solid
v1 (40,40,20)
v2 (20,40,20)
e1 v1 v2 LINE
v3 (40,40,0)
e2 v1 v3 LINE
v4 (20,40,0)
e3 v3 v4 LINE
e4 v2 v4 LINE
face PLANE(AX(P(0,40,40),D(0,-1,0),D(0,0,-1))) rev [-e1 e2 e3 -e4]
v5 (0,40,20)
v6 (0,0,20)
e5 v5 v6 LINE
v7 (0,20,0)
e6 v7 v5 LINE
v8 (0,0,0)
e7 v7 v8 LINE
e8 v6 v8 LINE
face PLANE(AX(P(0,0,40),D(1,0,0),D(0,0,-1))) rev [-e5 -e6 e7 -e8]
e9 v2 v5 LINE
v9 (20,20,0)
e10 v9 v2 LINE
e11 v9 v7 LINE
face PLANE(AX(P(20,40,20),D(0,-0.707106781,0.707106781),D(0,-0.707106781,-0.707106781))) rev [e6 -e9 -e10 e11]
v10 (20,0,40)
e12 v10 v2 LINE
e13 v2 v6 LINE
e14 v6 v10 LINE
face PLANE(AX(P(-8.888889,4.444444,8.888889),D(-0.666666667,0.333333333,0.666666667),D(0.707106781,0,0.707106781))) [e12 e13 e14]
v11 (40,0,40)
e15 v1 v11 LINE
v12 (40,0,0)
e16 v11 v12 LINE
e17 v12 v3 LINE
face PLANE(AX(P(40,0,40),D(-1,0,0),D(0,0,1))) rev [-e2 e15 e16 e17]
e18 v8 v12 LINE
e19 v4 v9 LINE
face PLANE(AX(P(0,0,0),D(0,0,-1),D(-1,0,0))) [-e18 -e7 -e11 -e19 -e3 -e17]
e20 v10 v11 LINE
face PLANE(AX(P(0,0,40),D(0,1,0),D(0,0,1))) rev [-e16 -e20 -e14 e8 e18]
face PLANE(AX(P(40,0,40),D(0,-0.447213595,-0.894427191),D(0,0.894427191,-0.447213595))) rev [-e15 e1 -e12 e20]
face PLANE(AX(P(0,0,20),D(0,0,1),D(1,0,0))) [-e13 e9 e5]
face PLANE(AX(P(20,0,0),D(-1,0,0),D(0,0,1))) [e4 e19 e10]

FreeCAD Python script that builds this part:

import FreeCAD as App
import Part
import Sketcher
from FreeCAD import Vector

doc = App.newDocument("Part")
body = doc.addObject("PartDesign::Body", "Body")

# Sketch on XY plane
sketch1 = body.newObject("Sketcher::SketchObject", "Sketch")
sketch1.AttachmentSupport = (doc.getObject("XY_Plane"), [""])
sketch1.MapMode = "FlatFace"
sketch1.addGeometry([
    Part.LineSegment(Vector(0, 40, 0), Vector(0, 0, 0)),
    Part.LineSegment(Vector(0, 0, 0), Vector(40, 0, 0)),
    Part.LineSegment(Vector(40, 0, 0), Vector(40, 40, 0)),
    Part.LineSegment(Vector(40, 40, 0), Vector(0, 40, 0)),
], False)
sketch1.addConstraint([
    Sketcher.Constraint("Coincident", 0, 2, 1, 1),
    Sketcher.Constraint("Coincident", 1, 2, 2, 1),
    Sketcher.Constraint("Coincident", 2, 2, 3, 1),
    Sketcher.Constraint("Coincident", 3, 2, 0, 1),
    Sketcher.Constraint("Vertical", 0),
    Sketcher.Constraint("Horizontal", 1),
    Sketcher.Constraint("Vertical", 2),
    Sketcher.Constraint("Horizontal", 3),
    Sketcher.Constraint("Coincident", 0, 2, -1, 1),
    Sketcher.Constraint("Equal", 3, 0),
    Sketcher.Constraint("DistanceX", 1, 1, 1, 2, 40.0),
])
pad1 = body.newObject("PartDesign::Pad", "Pad")
pad1.Profile = sketch1
pad1.Length = 40

# Sketch on YZ plane
sketch2 = body.newObject("Sketcher::SketchObject", "Sketch001")
sketch2.AttachmentSupport = (doc.getObject("YZ_Plane"), [""])
sketch2.MapMode = "FlatFace"
sketch2.addGeometry([
    Part.LineSegment(Vector(40, 20, 0), Vector(0, 40, 0)),
    Part.LineSegment(Vector(0, 40, 0), Vector(40, 40, 0)),
    Part.LineSegment(Vector(40, 40, 0), Vector(40, 20, 0)),
], False)
sketch2.addConstraint([
    Sketcher.Constraint("Coincident", 0, 2, 1, 1),
    Sketcher.Constraint("Coincident", 1, 2, 2, 1),
    Sketcher.Constraint("Coincident", 2, 2, 0, 1),
    Sketcher.Constraint("Horizontal", 1),
    Sketcher.Constraint("Vertical", 2),
    Sketcher.Constraint("PointOnObject", 0, 2, -2),
    Sketcher.Constraint("DistanceX", 1, 1, 1, 2, 40.0),
    Sketcher.Constraint("DistanceY", 2, 2, 2, 1, 20.0),
    Sketcher.Constraint("DistanceY", -1, 1, 0, 2, 40.0),
])
pocket1 = body.newObject("PartDesign::Pocket", "Pocket")
pocket1.Profile = sketch2
pocket1.Length = 40
pocket1.Reversed = True

# Sketch on XZ plane
sketch3 = body.newObject("Sketcher::SketchObject", "Sketch002")
sketch3.AttachmentSupport = (doc.getObject("XZ_Plane"), [""])
sketch3.MapMode = "FlatFace"
sketch3.addGeometry([
    Part.LineSegment(Vector(0, 20, 0), Vector(20, 40, 0)),
    Part.LineSegment(Vector(20, 40, 0), Vector(0, 40, 0)),
    Part.LineSegment(Vector(0, 40, 0), Vector(0, 20, 0)),
], False)
sketch3.addConstraint([
    Sketcher.Constraint("Coincident", 0, 2, 1, 1),
    Sketcher.Constraint("Coincident", 1, 2, 2, 1),
    Sketcher.Constraint("Coincident", 2, 2, 0, 1),
    Sketcher.Constraint("Horizontal", 1),
    Sketcher.Constraint("Vertical", 2),
    Sketcher.Constraint("PointOnObject", 1, 2, -2),
    Sketcher.Constraint("Equal", 1, 2),
    Sketcher.Constraint("DistanceX", 1, 2, 1, 1, 20.0),
    Sketcher.Constraint("DistanceY", -1, 1, 0, 2, 40.0),
])
pocket2 = body.newObject("PartDesign::Pocket", "Pocket001")
pocket2.Profile = sketch3
pocket2.Length = 40

# Sketch on YZ plane
sketch4 = body.newObject("Sketcher::SketchObject", "Sketch003")
sketch4.AttachmentSupport = (doc.getObject("YZ_Plane"), [""])
sketch4.MapMode = "FlatFace"
sketch4.addGeometry([
    Part.LineSegment(Vector(20, 0, 0), Vector(40, 20, 0)),
    Part.LineSegment(Vector(40, 20, 0), Vector(40, 0, 0)),
    Part.LineSegment(Vector(40, 0, 0), Vector(20, 0, 0)),
], False)
sketch4.addConstraint([
    Sketcher.Constraint("Coincident", 0, 2, 1, 1),
    Sketcher.Constraint("Coincident", 1, 2, 2, 1),
    Sketcher.Constraint("Coincident", 2, 2, 0, 1),
    Sketcher.Constraint("Vertical", 1),
    Sketcher.Constraint("Horizontal", 2),
    Sketcher.Constraint("PointOnObject", 1, 2, -1),
    Sketcher.Constraint("Equal", 2, 1),
    Sketcher.Constraint("DistanceX", 2, 2, 2, 1, 20.0),
    Sketcher.Constraint("DistanceX", -1, 1, 0, 2, 40.0),
])
pocket3 = body.newObject("PartDesign::Pocket", "Pocket002")
pocket3.Profile = sketch4
pocket3.Length = 20
pocket3.Reversed = True

# Sketch on an angled plane
sketch5 = body.newObject("Sketcher::SketchObject", "Sketch004")
sketch5.Placement = App.Placement(Vector(-8.888889, 4.444444, 8.888889), App.Rotation(Vector(0.745355992, 0.298142397, 0.596284794), Vector(0, 0.894427191, -0.447213595), Vector(-0.666666667, 0.333333333, 0.666666667), "ZXY"))
sketch5.addGeometry([
    Part.LineSegment(Vector(38.758512, -17.888544, 0), Vector(38.758512, 26.832816, 0)),
    Part.LineSegment(Vector(38.758512, 26.832816, 0), Vector(11.925696, -8.944272, 0)),
    Part.LineSegment(Vector(11.925696, -8.944272, 0), Vector(38.758512, -17.888544, 0)),
], False)
sketch5.addConstraint([
    Sketcher.Constraint("Coincident", 0, 2, 1, 1),
    Sketcher.Constraint("Coincident", 1, 2, 2, 1),
    Sketcher.Constraint("Coincident", 2, 2, 0, 1),
    Sketcher.Constraint("Vertical", 0),
    Sketcher.Constraint("DistanceY", 0, 1, 0, 2, 44.72136),
    Sketcher.Constraint("Distance", 1, 44.72136),
    Sketcher.Constraint("Distance", 2, 28.284271),
    Sketcher.Constraint("DistanceX", -1, 1, 0, 2, 38.758512),
    Sketcher.Constraint("DistanceY", 1, 2, -1, 1, 8.944272),
])
pocket4 = body.newObject("PartDesign::Pocket", "Pocket003")
pocket4.Profile = sketch5
pocket4.Length = 20
pocket4.Reversed = True

# Sketch on XY plane
sketch6 = body.newObject("Sketcher::SketchObject", "Sketch005")
sketch6.AttachmentSupport = (doc.getObject("XY_Plane"), [""])
sketch6.MapMode = "FlatFace"
sketch6.AttachmentOffset = App.Placement(Vector(0, 0, 20), App.Rotation())
sketch6.addGeometry([
    Part.LineSegment(Vector(0, 0, 0), Vector(20, 40, 0)),
    Part.LineSegment(Vector(20, 40, 0), Vector(0, 40, 0)),
    Part.LineSegment(Vector(0, 40, 0), Vector(0, 0, 0)),
], False)
sketch6.addConstraint([
    Sketcher.Constraint("Coincident", 0, 2, 1, 1),
    Sketcher.Constraint("Coincident", 1, 2, 2, 1),
    Sketcher.Constraint("Coincident", 2, 2, 0, 1),
    Sketcher.Constraint("Horizontal", 1),
    Sketcher.Constraint("Vertical", 2),
    Sketcher.Constraint("Coincident", 2, 2, -1, 1),
    Sketcher.Constraint("DistanceX", 1, 2, 1, 1, 20.0),
    Sketcher.Constraint("DistanceY", 2, 2, 2, 1, 40.0),
])
pocket5 = body.newObject("PartDesign::Pocket", "Pocket004")
pocket5.Profile = sketch6
pocket5.Length = 49
pocket5.Reversed = True

doc.recompute()
